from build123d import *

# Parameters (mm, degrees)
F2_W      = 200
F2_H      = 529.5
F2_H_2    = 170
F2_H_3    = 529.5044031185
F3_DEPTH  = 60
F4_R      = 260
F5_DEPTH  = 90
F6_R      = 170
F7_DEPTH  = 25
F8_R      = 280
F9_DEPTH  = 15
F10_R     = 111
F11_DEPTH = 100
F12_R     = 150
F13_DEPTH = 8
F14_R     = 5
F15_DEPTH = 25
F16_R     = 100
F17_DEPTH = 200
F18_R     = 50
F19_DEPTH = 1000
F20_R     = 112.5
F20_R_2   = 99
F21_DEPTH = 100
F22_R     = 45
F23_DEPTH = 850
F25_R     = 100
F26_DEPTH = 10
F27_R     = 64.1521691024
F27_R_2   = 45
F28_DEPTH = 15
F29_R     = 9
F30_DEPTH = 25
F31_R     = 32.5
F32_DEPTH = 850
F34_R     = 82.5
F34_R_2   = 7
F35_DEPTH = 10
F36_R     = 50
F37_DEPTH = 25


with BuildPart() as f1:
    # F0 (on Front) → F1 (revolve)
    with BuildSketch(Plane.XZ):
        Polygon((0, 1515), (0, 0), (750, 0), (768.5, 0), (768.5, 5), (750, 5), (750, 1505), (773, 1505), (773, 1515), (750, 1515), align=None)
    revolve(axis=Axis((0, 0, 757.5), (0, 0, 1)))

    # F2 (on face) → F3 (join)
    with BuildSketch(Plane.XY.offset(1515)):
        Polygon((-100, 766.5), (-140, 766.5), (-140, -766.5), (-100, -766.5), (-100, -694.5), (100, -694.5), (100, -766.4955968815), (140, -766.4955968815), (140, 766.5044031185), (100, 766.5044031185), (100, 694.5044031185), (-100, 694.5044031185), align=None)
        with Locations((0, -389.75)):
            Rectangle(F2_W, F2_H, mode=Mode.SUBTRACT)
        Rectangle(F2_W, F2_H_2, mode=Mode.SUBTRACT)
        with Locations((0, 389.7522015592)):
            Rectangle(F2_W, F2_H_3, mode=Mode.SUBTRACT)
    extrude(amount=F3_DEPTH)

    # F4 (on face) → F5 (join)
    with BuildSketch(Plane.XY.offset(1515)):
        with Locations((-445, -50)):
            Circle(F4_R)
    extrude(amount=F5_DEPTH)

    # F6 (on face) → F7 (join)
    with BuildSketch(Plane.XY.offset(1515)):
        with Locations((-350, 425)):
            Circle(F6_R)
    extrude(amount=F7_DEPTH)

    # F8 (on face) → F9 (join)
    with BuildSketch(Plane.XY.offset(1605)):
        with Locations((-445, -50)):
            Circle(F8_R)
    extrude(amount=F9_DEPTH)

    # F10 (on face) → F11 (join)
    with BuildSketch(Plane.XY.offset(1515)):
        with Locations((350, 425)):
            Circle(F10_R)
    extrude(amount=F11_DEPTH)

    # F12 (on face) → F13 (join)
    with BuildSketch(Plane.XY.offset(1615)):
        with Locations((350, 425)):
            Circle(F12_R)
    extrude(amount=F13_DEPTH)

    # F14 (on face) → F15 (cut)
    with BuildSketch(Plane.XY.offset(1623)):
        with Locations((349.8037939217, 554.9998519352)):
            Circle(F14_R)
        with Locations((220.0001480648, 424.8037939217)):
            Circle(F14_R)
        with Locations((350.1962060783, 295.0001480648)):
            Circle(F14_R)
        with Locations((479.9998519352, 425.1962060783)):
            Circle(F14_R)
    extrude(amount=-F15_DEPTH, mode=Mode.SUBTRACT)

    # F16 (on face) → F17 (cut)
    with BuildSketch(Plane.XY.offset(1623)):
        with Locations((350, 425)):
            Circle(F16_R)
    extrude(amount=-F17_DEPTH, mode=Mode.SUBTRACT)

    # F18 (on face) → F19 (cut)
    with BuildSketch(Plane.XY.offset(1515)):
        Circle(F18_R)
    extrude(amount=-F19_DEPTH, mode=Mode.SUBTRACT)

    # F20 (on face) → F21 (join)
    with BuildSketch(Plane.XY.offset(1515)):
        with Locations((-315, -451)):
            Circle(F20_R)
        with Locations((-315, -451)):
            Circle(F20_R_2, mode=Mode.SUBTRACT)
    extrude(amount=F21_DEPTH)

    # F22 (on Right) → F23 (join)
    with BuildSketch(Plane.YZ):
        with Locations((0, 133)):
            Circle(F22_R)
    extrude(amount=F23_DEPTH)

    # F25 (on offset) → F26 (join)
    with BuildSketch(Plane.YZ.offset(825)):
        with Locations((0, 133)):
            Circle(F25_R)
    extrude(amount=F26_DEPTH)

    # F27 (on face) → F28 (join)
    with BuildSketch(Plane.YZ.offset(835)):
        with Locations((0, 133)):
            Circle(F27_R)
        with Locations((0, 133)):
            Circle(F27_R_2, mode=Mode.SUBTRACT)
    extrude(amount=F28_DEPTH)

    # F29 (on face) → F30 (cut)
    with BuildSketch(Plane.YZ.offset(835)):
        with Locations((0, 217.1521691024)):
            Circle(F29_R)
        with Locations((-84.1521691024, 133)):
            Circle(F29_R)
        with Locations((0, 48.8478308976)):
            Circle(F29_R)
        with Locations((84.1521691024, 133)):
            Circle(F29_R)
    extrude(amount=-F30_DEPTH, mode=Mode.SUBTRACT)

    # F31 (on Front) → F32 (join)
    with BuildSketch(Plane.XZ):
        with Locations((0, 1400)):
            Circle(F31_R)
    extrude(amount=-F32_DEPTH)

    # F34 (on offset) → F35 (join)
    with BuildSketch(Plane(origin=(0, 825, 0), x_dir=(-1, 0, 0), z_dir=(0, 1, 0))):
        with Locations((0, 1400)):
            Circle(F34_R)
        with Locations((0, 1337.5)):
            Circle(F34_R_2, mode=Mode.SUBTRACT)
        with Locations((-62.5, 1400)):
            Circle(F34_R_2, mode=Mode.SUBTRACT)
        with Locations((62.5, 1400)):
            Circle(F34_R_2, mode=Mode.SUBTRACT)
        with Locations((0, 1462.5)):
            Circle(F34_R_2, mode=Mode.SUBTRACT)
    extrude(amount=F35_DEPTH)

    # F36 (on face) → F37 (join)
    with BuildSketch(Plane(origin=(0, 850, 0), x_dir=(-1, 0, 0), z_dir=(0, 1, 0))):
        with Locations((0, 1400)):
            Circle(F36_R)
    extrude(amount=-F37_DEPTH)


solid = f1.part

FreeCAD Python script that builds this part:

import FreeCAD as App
import Part
import Sketcher
from FreeCAD import Vector
Q = App.Units.Quantity

doc = App.newDocument("Part")
body = doc.addObject("PartDesign::Body", "Body")

# Sketch on XZ plane
sketch1 = body.newObject("Sketcher::SketchObject", "Sketch")
sketch1.AttachmentSupport = (doc.getObject("XZ_Plane"), [""])
sketch1.MapMode = "FlatFace"
sketch1.addGeometry([
    Part.LineSegment(Vector(0, 1515, 0), Vector(0, 0, 0)),  # 0
    Part.LineSegment(Vector(0, 0, 0), Vector(768.5, 0, 0)),  # 1
    Part.LineSegment(Vector(768.5, 0, 0), Vector(768.5, 5, 0)),  # 2
    Part.LineSegment(Vector(768.5, 5, 0), Vector(750, 5, 0)),  # 3
    Part.LineSegment(Vector(750, 5, 0), Vector(750, 1505, 0)),  # 4
    Part.LineSegment(Vector(750, 1505, 0), Vector(773, 1505, 0)),  # 5
    Part.LineSegment(Vector(773, 1505, 0), Vector(773, 1515, 0)),  # 6
    Part.LineSegment(Vector(773, 1515, 0), Vector(0, 1515, 0)),  # 7
], False)
sketch1.addConstraint([
    Sketcher.Constraint("Coincident", 0, 2, 1, 1),
    Sketcher.Constraint("Coincident", 1, 2, 2, 1),
    Sketcher.Constraint("Coincident", 2, 2, 3, 1),
    Sketcher.Constraint("Coincident", 3, 2, 4, 1),
    Sketcher.Constraint("Coincident", 4, 2, 5, 1),
    Sketcher.Constraint("Coincident", 5, 2, 6, 1),
    Sketcher.Constraint("Coincident", 6, 2, 7, 1),
    Sketcher.Constraint("Coincident", 7, 2, 0, 1),
    Sketcher.Constraint("Vertical", 0),
    Sketcher.Constraint("Horizontal", 1),
    Sketcher.Constraint("Vertical", 2),
    Sketcher.Constraint("Horizontal", 3),
    Sketcher.Constraint("Vertical", 4),
    Sketcher.Constraint("Horizontal", 5),
    Sketcher.Constraint("Vertical", 6),
    Sketcher.Constraint("Horizontal", 7),
    Sketcher.Constraint("Coincident", 0, 2, -1, 1),
    Sketcher.Constraint("DistanceX", 5, 1, 5, 2, Q("23 mm")),
    Sketcher.Constraint("DistanceX", 7, 2, 7, 1, Q("773 mm")),
    Sketcher.Constraint("DistanceY", 0, 2, 0, 1, Q("1515 mm")),
    Sketcher.Constraint("DistanceY", 2, 1, 2, 2, Q("5 mm")),
    Sketcher.Constraint("DistanceY", 4, 1, 4, 2, Q("1500 mm")),
    Sketcher.Constraint("DistanceX", 1, 1, 1, 2, Q("768.5 mm")),
])
revolution = body.newObject("PartDesign::Revolution", "Revolution")
revolution.Profile = sketch1
revolution.ReferenceAxis = (sketch1, ["V_Axis"])
revolution.Angle = 360

# Sketch on XY plane
sketch2 = body.newObject("Sketcher::SketchObject", "Sketch001")
sketch2.AttachmentSupport = (doc.getObject("XY_Plane"), [""])
sketch2.MapMode = "FlatFace"
sketch2.AttachmentOffset = App.Placement(Vector(0, 0, 1515), App.Rotation())
sketch2.addGeometry([
    Part.LineSegment(Vector(-100, 766.5, 0), Vector(-140, 766.5, 0)),  # 0
    Part.LineSegment(Vector(-140, 766.5, 0), Vector(-140, -766.5, 0)),  # 1
    Part.LineSegment(Vector(-140, -766.5, 0), Vector(-100, -766.5, 0)),  # 2
    Part.LineSegment(Vector(-100, -766.5, 0), Vector(-100, -694.5, 0)),  # 3
    Part.LineSegment(Vector(-100, -694.5, 0), Vector(100, -694.5, 0)),  # 4
    Part.LineSegment(Vector(100, -694.5, 0), Vector(100, -766.495597, 0)),  # 5
    Part.LineSegment(Vector(100, -766.495597, 0), Vector(140, -766.495597, 0)),  # 6
    Part.LineSegment(Vector(140, -766.495597, 0), Vector(140, 766.504403, 0)),  # 7
    Part.LineSegment(Vector(140, 766.504403, 0), Vector(100, 766.504403, 0)),  # 8
    Part.LineSegment(Vector(100, 766.504403, 0), Vector(100, 694.504403, 0)),  # 9
    Part.LineSegment(Vector(100, 694.504403, 0), Vector(-100, 694.504403, 0)),  # 10
    Part.LineSegment(Vector(-100, 694.504403, 0), Vector(-100, 766.5, 0)),  # 11
    Part.LineSegment(Vector(100, -654.5, 0), Vector(-100, -654.5, 0)),  # 12
    Part.LineSegment(Vector(-100, -654.5, 0), Vector(-100, -125, 0)),  # 13
    Part.LineSegment(Vector(-100, -125, 0), Vector(100, -125, 0)),  # 14
    Part.LineSegment(Vector(100, -125, 0), Vector(100, -654.5, 0)),  # 15
    Part.LineSegment(Vector(100, -85, 0), Vector(-100, -85, 0)),  # 16
    Part.LineSegment(Vector(-100, -85, 0), Vector(-100, 85, 0)),  # 17
    Part.LineSegment(Vector(-100, 85, 0), Vector(100, 85, 0)),  # 18
    Part.LineSegment(Vector(100, 85, 0), Vector(100, -85, 0)),  # 19
    Part.LineSegment(Vector(100, 125, 0), Vector(-100, 125, 0)),  # 20
    Part.LineSegment(Vector(-100, 125, 0), Vector(-100, 654.504403, 0)),  # 21
    Part.LineSegment(Vector(-100, 654.504403, 0), Vector(100, 654.504403, 0)),  # 22
    Part.LineSegment(Vector(100, 654.504403, 0), Vector(100, 125, 0)),  # 23
], False)
sketch2.addConstraint([
    Sketcher.Constraint("Coincident", 0, 2, 1, 1),
    Sketcher.Constraint("Coincident", 1, 2, 2, 1),
    Sketcher.Constraint("Coincident", 2, 2, 3, 1),
    Sketcher.Constraint("Coincident", 3, 2, 4, 1),
    Sketcher.Constraint("Coincident", 4, 2, 5, 1),
    Sketcher.Constraint("Coincident", 5, 2, 6, 1),
    Sketcher.Constraint("Coincident", 6, 2, 7, 1),
    Sketcher.Constraint("Coincident", 7, 2, 8, 1),
    Sketcher.Constraint("Coincident", 8, 2, 9, 1),
    Sketcher.Constraint("Coincident", 9, 2, 10, 1),
    Sketcher.Constraint("Coincident", 10, 2, 11, 1),
    Sketcher.Constraint("Coincident", 11, 2, 0, 1),
    Sketcher.Constraint("Coincident", 12, 2, 13, 1),
    Sketcher.Constraint("Coincident", 13, 2, 14, 1),
    Sketcher.Constraint("Coincident", 14, 2, 15, 1),
    Sketcher.Constraint("Coincident", 15, 2, 12, 1),
    Sketcher.Constraint("Coincident", 16, 2, 17, 1),
    Sketcher.Constraint("Coincident", 17, 2, 18, 1),
    Sketcher.Constraint("Coincident", 18, 2, 19, 1),
    Sketcher.Constraint("Coincident", 19, 2, 16, 1),
    Sketcher.Constraint("Coincident", 20, 2, 21, 1),
    Sketcher.Constraint("Coincident", 21, 2, 22, 1),
    Sketcher.Constraint("Coincident", 22, 2, 23, 1),
    Sketcher.Constraint("Coincident", 23, 2, 20, 1),
    Sketcher.Constraint("Horizontal", 0),
    Sketcher.Constraint("Vertical", 1),
    Sketcher.Constraint("Horizontal", 2),
    Sketcher.Constraint("Vertical", 3),
    Sketcher.Constraint("Horizontal", 4),
    Sketcher.Constraint("Vertical", 5),
    Sketcher.Constraint("Horizontal", 6),
    Sketcher.Constraint("Vertical", 7),
    Sketcher.Constraint("Horizontal", 8),
    Sketcher.Constraint("Vertical", 9),
    Sketcher.Constraint("Horizontal", 10),
    Sketcher.Constraint("Vertical", 11),
    Sketcher.Constraint("Horizontal", 12),
    Sketcher.Constraint("Vertical", 13),
    Sketcher.Constraint("Horizontal", 14),
    Sketcher.Constraint("Vertical", 15),
    Sketcher.Constraint("Horizontal", 16),
    Sketcher.Constraint("Vertical", 17),
    Sketcher.Constraint("Horizontal", 18),
    Sketcher.Constraint("Vertical", 19),
    Sketcher.Constraint("Horizontal", 20),
    Sketcher.Constraint("Vertical", 21),
    Sketcher.Constraint("Horizontal", 22),
    Sketcher.Constraint("Vertical", 23),
    Sketcher.Constraint("Symmetric", 16, 2, 18, 2, -1, 1),
    Sketcher.Constraint("Symmetric", 14, 2, 20, 2, -1, 1),
    Sketcher.Constraint("Symmetric", 2, 2, 11, 2, -1),
    Sketcher.Constraint("Vertical", 5, 2, 8, 2),
    Sketcher.Constraint("Vertical", 11, 2, 12, 2),
    Sketcher.Constraint("Vertical", 9, 2, 14, 2),
    Sketcher.Constraint("Vertical", 13, 2, 16, 2),
    Sketcher.Constraint("Vertical", 15, 2, 18, 2),
    Sketcher.Constraint("Vertical", 19, 2, 22, 2),
    Sketcher.Constraint("Equal", 2, 6),
    Sketcher.Constraint("Equal", 1, 7),
    Sketcher.Constraint("Equal", 3, 9),
    Sketcher.Constraint("DistanceX", 0, 2, 0, 1, Q("40 mm")),
    Sketcher.Constraint("DistanceX", 4, 1, 4, 2, Q("200 mm")),
    Sketcher.Constraint("DistanceY", 1, 2, 1, 1, Q("1533 mm")),
    Sketcher.Constraint("DistanceY", 3, 1, 3, 2, Q("72 mm")),
    Sketcher.Constraint("DistanceY", 17, 1, 17, 2, Q("170 mm")),
    Sketcher.Constraint("DistanceY", 13, 1, 13, 2, Q("529.5 mm")),
    Sketcher.Constraint("DistanceY", 13, 2, -1, 1, Q("125 mm")),
    Sketcher.Constraint("DistanceY", 21, 2, 10, 2, Q("40 mm")),
    Sketcher.Constraint("DistanceY", 5, 2, 5, 1, Q("71.995597 mm")),
])
pad1 = body.newObject("PartDesign::Pad", "Pad")
pad1.Profile = sketch2
pad1.Length = 60

# Sketch on XY plane
sketch3 = body.newObject("Sketcher::SketchObject", "Sketch002")
sketch3.AttachmentSupport = (doc.getObject("XY_Plane"), [""])
sketch3.MapMode = "FlatFace"
sketch3.AttachmentOffset = App.Placement(Vector(0, 0, 1515), App.Rotation())
sketch3.addGeometry(Part.Circle(Vector(-445, -50, 0), Vector(0, 0, 1), 260), False)
sketch3.addConstraint([
    Sketcher.Constraint("Diameter", 0, Q("520 mm")),
    Sketcher.Constraint("DistanceX", 0, 3, -1, 1, Q("445 mm")),
    Sketcher.Constraint("DistanceY", 0, 3, -1, 1, Q("50 mm")),
])
pad2 = body.newObject("PartDesign::Pad", "Pad001")
pad2.Profile = sketch3
pad2.Length = 90

# Sketch on XY plane
sketch4 = body.newObject("Sketcher::SketchObject", "Sketch003")
sketch4.AttachmentSupport = (doc.getObject("XY_Plane"), [""])
sketch4.MapMode = "FlatFace"
sketch4.AttachmentOffset = App.Placement(Vector(0, 0, 1515), App.Rotation())
sketch4.addGeometry(Part.Circle(Vector(-350, 425, 0), Vector(0, 0, 1), 170), False)
sketch4.addConstraint([
    Sketcher.Constraint("Diameter", 0, Q("340 mm")),
    Sketcher.Constraint("DistanceX", 0, 3, -1, 1, Q("350 mm")),
    Sketcher.Constraint("DistanceY", -1, 1, 0, 3, Q("425 mm")),
])
pad3 = body.newObject("PartDesign::Pad", "Pad002")
pad3.Profile = sketch4
pad3.Length = 25

# Sketch on XY plane
sketch5 = body.newObject("Sketcher::SketchObject", "Sketch004")
sketch5.AttachmentSupport = (doc.getObject("XY_Plane"), [""])
sketch5.MapMode = "FlatFace"
sketch5.AttachmentOffset = App.Placement(Vector(0, 0, 1605), App.Rotation())
sketch5.addGeometry(Part.Circle(Vector(-445, -50, 0), Vector(0, 0, 1), 280), False)
sketch5.addConstraint([
    Sketcher.Constraint("Diameter", 0, Q("560 mm")),
    Sketcher.Constraint("DistanceX", 0, 3, -1, 1, Q("445 mm")),
    Sketcher.Constraint("DistanceY", 0, 3, -1, 1, Q("50 mm")),
])
pad4 = body.newObject("PartDesign::Pad", "Pad003")
pad4.Profile = sketch5
pad4.Length = 15

# Sketch on XY plane
sketch6 = body.newObject("Sketcher::SketchObject", "Sketch005")
sketch6.AttachmentSupport = (doc.getObject("XY_Plane"), [""])
sketch6.MapMode = "FlatFace"
sketch6.AttachmentOffset = App.Placement(Vector(0, 0, 1515), App.Rotation())
sketch6.addGeometry(Part.Circle(Vector(350, 425, 0), Vector(0, 0, 1), 111), False)
sketch6.addConstraint([
    Sketcher.Constraint("Diameter", 0, Q("222 mm")),
    Sketcher.Constraint("DistanceX", -1, 1, 0, 3, Q("350 mm")),
    Sketcher.Constraint("DistanceY", -1, 1, 0, 3, Q("425 mm")),
])
pad5 = body.newObject("PartDesign::Pad", "Pad004")
pad5.Profile = sketch6
pad5.Length = 100

# Sketch on XY plane
sketch7 = body.newObject("Sketcher::SketchObject", "Sketch006")
sketch7.AttachmentSupport = (doc.getObject("XY_Plane"), [""])
sketch7.MapMode = "FlatFace"
sketch7.AttachmentOffset = App.Placement(Vector(0, 0, 1615), App.Rotation())
sketch7.addGeometry(Part.Circle(Vector(350, 425, 0), Vector(0, 0, 1), 150), False)
sketch7.addConstraint([
    Sketcher.Constraint("Diameter", 0, Q("300 mm")),
    Sketcher.Constraint("DistanceX", -1, 1, 0, 3, Q("350 mm")),
    Sketcher.Constraint("DistanceY", -1, 1, 0, 3, Q("425 mm")),
])
pad6 = body.newObject("PartDesign::Pad", "Pad005")
pad6.Profile = sketch7
pad6.Length = 8

# Sketch on XY plane
sketch8 = body.newObject("Sketcher::SketchObject", "Sketch007")
sketch8.AttachmentSupport = (doc.getObject("XY_Plane"), [""])
sketch8.MapMode = "FlatFace"
sketch8.AttachmentOffset = App.Placement(Vector(0, 0, 1623), App.Rotation())
sketch8.addGeometry([
    Part.Circle(Vector(349.803794, 554.999852, 0), Vector(0, 0, 1), 5),
    Part.Circle(Vector(220.000148, 424.803794, 0), Vector(0, 0, 1), 5),
    Part.Circle(Vector(350.196206, 295.000148, 0), Vector(0, 0, 1), 5),
    Part.Circle(Vector(479.999852, 425.196206, 0), Vector(0, 0, 1), 5),
], False)
sketch8.addConstraint([
    Sketcher.Constraint("Equal", 0, 1),
    Sketcher.Constraint("Equal", 1, 2),
    Sketcher.Constraint("Equal", 2, 3),
    Sketcher.Constraint("Diameter", 0, Q("10 mm")),
    Sketcher.Constraint("DistanceY", -1, 1, 0, 3, Q("554.999852 mm")),
    Sketcher.Constraint("DistanceX", -1, 1, 1, 3, Q("220.000148 mm")),
    Sketcher.Constraint("DistanceY", -1, 1, 2, 3, Q("295.000148 mm")),
    Sketcher.Constraint("DistanceX", -1, 1, 3, 3, Q("479.999852 mm")),
    Sketcher.Constraint("DistanceY", 1, 3, 0, 3, Q("130.196058 mm")),
    Sketcher.Constraint("DistanceX", 1, 3, 2, 3, Q("130.196058 mm")),
    Sketcher.Constraint("DistanceY", 2, 3, 3, 3, Q("130.196058 mm")),
    Sketcher.Constraint("DistanceX", 0, 3, 3, 3, Q("130.196058 mm")),
])
pocket1 = body.newObject("PartDesign::Pocket", "Pocket")
pocket1.Profile = sketch8
pocket1.Length = 25

# Sketch on XY plane
sketch9 = body.newObject("Sketcher::SketchObject", "Sketch008")
sketch9.AttachmentSupport = (doc.getObject("XY_Plane"), [""])
sketch9.MapMode = "FlatFace"
sketch9.AttachmentOffset = App.Placement(Vector(0, 0, 1623), App.Rotation())
sketch9.addGeometry(Part.Circle(Vector(350, 425, 0), Vector(0, 0, 1), 100), False)
sketch9.addConstraint([
    Sketcher.Constraint("Diameter", 0, Q("200 mm")),
    Sketcher.Constraint("DistanceX", -1, 1, 0, 3, Q("350 mm")),
    Sketcher.Constraint("DistanceY", -1, 1, 0, 3, Q("425 mm")),
])
pocket2 = body.newObject("PartDesign::Pocket", "Pocket001")
pocket2.Profile = sketch9
pocket2.Length = 200

# Sketch on XY plane
sketch10 = body.newObject("Sketcher::SketchObject", "Sketch009")
sketch10.AttachmentSupport = (doc.getObject("XY_Plane"), [""])
sketch10.MapMode = "FlatFace"
sketch10.AttachmentOffset = App.Placement(Vector(0, 0, 1515), App.Rotation())
sketch10.addGeometry(Part.Circle(Vector(0, 0, 0), Vector(0, 0, 1), 50), False)
sketch10.addConstraint([
    Sketcher.Constraint("Coincident", 0, 3, -1, 1),
    Sketcher.Constraint("Diameter", 0, Q("100 mm")),
])
pocket3 = body.newObject("PartDesign::Pocket", "Pocket002")
pocket3.Profile = sketch10
pocket3.Length = 1000

# Sketch on XY plane
sketch11 = body.newObject("Sketcher::SketchObject", "Sketch010")
sketch11.AttachmentSupport = (doc.getObject("XY_Plane"), [""])
sketch11.MapMode = "FlatFace"
sketch11.AttachmentOffset = App.Placement(Vector(0, 0, 1515), App.Rotation())
sketch11.addGeometry([
    Part.Circle(Vector(-315, -451, 0), Vector(0, 0, 1), 112.5),
    Part.Circle(Vector(-315, -451, 0), Vector(0, 0, 1), 99),
], False)
sketch11.addConstraint([
    Sketcher.Constraint("Coincident", 1, 3, 0, 3),
    Sketcher.Constraint("Diameter", 0, Q("225 mm")),
    Sketcher.Constraint("Diameter", 1, Q("198 mm")),
    Sketcher.Constraint("DistanceX", 0, 3, -1, 1, Q("315 mm")),
    Sketcher.Constraint("DistanceY", 0, 3, -1, 1, Q("451 mm")),
])
pad7 = body.newObject("PartDesign::Pad", "Pad006")
pad7.Profile = sketch11
pad7.Length = 100

# Sketch on YZ plane
sketch12 = body.newObject("Sketcher::SketchObject", "Sketch011")
sketch12.AttachmentSupport = (doc.getObject("YZ_Plane"), [""])
sketch12.MapMode = "FlatFace"
sketch12.addGeometry(Part.Circle(Vector(0, 133, 0), Vector(0, 0, 1), 45), False)
sketch12.addConstraint([
    Sketcher.Constraint("PointOnObject", 0, 3, -2),
    Sketcher.Constraint("Diameter", 0, Q("90 mm")),
    Sketcher.Constraint("DistanceY", -1, 1, 0, 3, Q("133 mm")),
])
pad8 = body.newObject("PartDesign::Pad", "Pad007")
pad8.Profile = sketch12
pad8.Length = 850

# Sketch on YZ plane
sketch13 = body.newObject("Sketcher::SketchObject", "Sketch012")
sketch13.AttachmentSupport = (doc.getObject("YZ_Plane"), [""])
sketch13.MapMode = "FlatFace"
sketch13.AttachmentOffset = App.Placement(Vector(0, 0, 825), App.Rotation())
sketch13.addGeometry(Part.Circle(Vector(0, 133, 0), Vector(0, 0, 1), 100), False)
sketch13.addConstraint([
    Sketcher.Constraint("PointOnObject", 0, 3, -2),
    Sketcher.Constraint("Diameter", 0, Q("200 mm")),
    Sketcher.Constraint("DistanceY", -1, 1, 0, 3, Q("133 mm")),
])
pad9 = body.newObject("PartDesign::Pad", "Pad008")
pad9.Profile = sketch13
pad9.Length = 10

# Sketch on YZ plane
sketch14 = body.newObject("Sketcher::SketchObject", "Sketch013")
sketch14.AttachmentSupport = (doc.getObject("YZ_Plane"), [""])
sketch14.MapMode = "FlatFace"
sketch14.AttachmentOffset = App.Placement(Vector(0, 0, 835), App.Rotation())
sketch14.addGeometry([
    Part.Circle(Vector(0, 133, 0), Vector(0, 0, 1), 64.152169),
    Part.Circle(Vector(0, 133, 0), Vector(0, 0, 1), 45),
], False)
sketch14.addConstraint([
    Sketcher.Constraint("Coincident", 1, 3, 0, 3),
    Sketcher.Constraint("PointOnObject", 0, 3, -2),
    Sketcher.Constraint("Diameter", 1, Q("90 mm")),
    Sketcher.Constraint("DistanceY", -1, 1, 0, 3, Q("133 mm")),
    Sketcher.Constraint("Diameter", 0, Q("128.304338 mm")),
])
pad10 = body.newObject("PartDesign::Pad", "Pad009")
pad10.Profile = sketch14
pad10.Length = 15

# Sketch on YZ plane
sketch15 = body.newObject("Sketcher::SketchObject", "Sketch014")
sketch15.AttachmentSupport = (doc.getObject("YZ_Plane"), [""])
sketch15.MapMode = "FlatFace"
sketch15.AttachmentOffset = App.Placement(Vector(0, 0, 835), App.Rotation())
sketch15.addGeometry([
    Part.Circle(Vector(0, 217.152169, 0), Vector(0, 0, 1), 9),
    Part.Circle(Vector(-84.152169, 133, 0), Vector(0, 0, 1), 9),
    Part.Circle(Vector(0, 48.847831, 0), Vector(0, 0, 1), 9),
    Part.Circle(Vector(84.152169, 133, 0), Vector(0, 0, 1), 9),
], False)
sketch15.addConstraint([
    Sketcher.Constraint("Equal", 0, 1),
    Sketcher.Constraint("Equal", 1, 2),
    Sketcher.Constraint("Equal", 2, 3),
    Sketcher.Constraint("Symmetric", 1, 3, 3, 3, -2),
    Sketcher.Constraint("PointOnObject", 0, 3, -2),
    Sketcher.Constraint("PointOnObject", 2, 3, -2),
    Sketcher.Constraint("Diameter", 0, Q("18 mm")),
    Sketcher.Constraint("DistanceY", -1, 1, 1, 3, Q("133 mm")),
    Sketcher.Constraint("DistanceY", -1, 1, 0, 3, Q("217.152169 mm")),
    Sketcher.Constraint("DistanceX", 1, 3, -1, 1, Q("84.152169 mm")),
    Sketcher.Constraint("DistanceY", -1, 1, 2, 3, Q("48.847831 mm")),
])
pocket4 = body.newObject("PartDesign::Pocket", "Pocket003")
pocket4.Profile = sketch15
pocket4.Length = 25

# Sketch on XZ plane
sketch16 = body.newObject("Sketcher::SketchObject", "Sketch015")
sketch16.AttachmentSupport = (doc.getObject("XZ_Plane"), [""])
sketch16.MapMode = "FlatFace"
sketch16.addGeometry(Part.Circle(Vector(0, 1400, 0), Vector(0, 0, 1), 32.5), False)
sketch16.addConstraint([
    Sketcher.Constraint("PointOnObject", 0, 3, -2),
    Sketcher.Constraint("Diameter", 0, Q("65 mm")),
    Sketcher.Constraint("DistanceY", -1, 1, 0, 3, Q("1400 mm")),
])
pad11 = body.newObject("PartDesign::Pad", "Pad010")
pad11.Profile = sketch16
pad11.Length = 850
pad11.Reversed = True

# Sketch on XZ plane
sketch17 = body.newObject("Sketcher::SketchObject", "Sketch016")
sketch17.AttachmentSupport = (doc.getObject("XZ_Plane"), [""])
sketch17.MapMode = "FlatFace"
sketch17.AttachmentOffset = App.Placement(Vector(0, 0, -825), App.Rotation())
sketch17.addGeometry([
    Part.Circle(Vector(0, 1400, 0), Vector(0, 0, 1), 82.5),  # 0
    Part.Circle(Vector(0, 1337.5, 0), Vector(0, 0, 1), 7),  # 1
    Part.Circle(Vector(62.5, 1400, 0), Vector(0, 0, 1), 7),  # 2
    Part.Circle(Vector(-62.5, 1400, 0), Vector(0, 0, 1), 7),  # 3
    Part.Circle(Vector(0, 1462.5, 0), Vector(0, 0, 1), 7),  # 4
], False)
sketch17.addConstraint([
    Sketcher.Constraint("Equal", 1, 2),
    Sketcher.Constraint("Equal", 2, 3),
    Sketcher.Constraint("Equal", 3, 4),
    Sketcher.Constraint("Symmetric", 2, 3, 3, 3, -2),
    Sketcher.Constraint("PointOnObject", 0, 3, -2),
    Sketcher.Constraint("PointOnObject", 1, 3, -2),
    Sketcher.Constraint("PointOnObject", 4, 3, -2),
    Sketcher.Constraint("Horizontal", 0, 3, 2, 3),
    Sketcher.Constraint("Diameter", 0, Q("165 mm")),
    Sketcher.Constraint("Diameter", 1, Q("14 mm")),
    Sketcher.Constraint("DistanceY", -1, 1, 0, 3, Q("1400 mm")),
    Sketcher.Constraint("DistanceX", 3, 3, 2, 3, Q("125 mm")),
    Sketcher.Constraint("DistanceY", 1, 3, 4, 3, Q("125 mm")),
    Sketcher.Constraint("DistanceY", -1, 1, 1, 3, Q("1337.5 mm")),
])
pad12 = body.newObject("PartDesign::Pad", "Pad011")
pad12.Profile = sketch17
pad12.Length = 10
pad12.Reversed = True

# Sketch on XZ plane
sketch18 = body.newObject("Sketcher::SketchObject", "Sketch017")
sketch18.AttachmentSupport = (doc.getObject("XZ_Plane"), [""])
sketch18.MapMode = "FlatFace"
sketch18.AttachmentOffset = App.Placement(Vector(0, 0, -850), App.Rotation())
sketch18.addGeometry(Part.Circle(Vector(0, 1400, 0), Vector(0, 0, 1), 50), False)
sketch18.addConstraint([
    Sketcher.Constraint("PointOnObject", 0, 3, -2),
    Sketcher.Constraint("Diameter", 0, Q("100 mm")),
    Sketcher.Constraint("DistanceY", -1, 1, 0, 3, Q("1400 mm")),
])
pad13 = body.newObject("PartDesign::Pad", "Pad012")
pad13.Profile = sketch18
pad13.Length = 25

doc.recompute()
